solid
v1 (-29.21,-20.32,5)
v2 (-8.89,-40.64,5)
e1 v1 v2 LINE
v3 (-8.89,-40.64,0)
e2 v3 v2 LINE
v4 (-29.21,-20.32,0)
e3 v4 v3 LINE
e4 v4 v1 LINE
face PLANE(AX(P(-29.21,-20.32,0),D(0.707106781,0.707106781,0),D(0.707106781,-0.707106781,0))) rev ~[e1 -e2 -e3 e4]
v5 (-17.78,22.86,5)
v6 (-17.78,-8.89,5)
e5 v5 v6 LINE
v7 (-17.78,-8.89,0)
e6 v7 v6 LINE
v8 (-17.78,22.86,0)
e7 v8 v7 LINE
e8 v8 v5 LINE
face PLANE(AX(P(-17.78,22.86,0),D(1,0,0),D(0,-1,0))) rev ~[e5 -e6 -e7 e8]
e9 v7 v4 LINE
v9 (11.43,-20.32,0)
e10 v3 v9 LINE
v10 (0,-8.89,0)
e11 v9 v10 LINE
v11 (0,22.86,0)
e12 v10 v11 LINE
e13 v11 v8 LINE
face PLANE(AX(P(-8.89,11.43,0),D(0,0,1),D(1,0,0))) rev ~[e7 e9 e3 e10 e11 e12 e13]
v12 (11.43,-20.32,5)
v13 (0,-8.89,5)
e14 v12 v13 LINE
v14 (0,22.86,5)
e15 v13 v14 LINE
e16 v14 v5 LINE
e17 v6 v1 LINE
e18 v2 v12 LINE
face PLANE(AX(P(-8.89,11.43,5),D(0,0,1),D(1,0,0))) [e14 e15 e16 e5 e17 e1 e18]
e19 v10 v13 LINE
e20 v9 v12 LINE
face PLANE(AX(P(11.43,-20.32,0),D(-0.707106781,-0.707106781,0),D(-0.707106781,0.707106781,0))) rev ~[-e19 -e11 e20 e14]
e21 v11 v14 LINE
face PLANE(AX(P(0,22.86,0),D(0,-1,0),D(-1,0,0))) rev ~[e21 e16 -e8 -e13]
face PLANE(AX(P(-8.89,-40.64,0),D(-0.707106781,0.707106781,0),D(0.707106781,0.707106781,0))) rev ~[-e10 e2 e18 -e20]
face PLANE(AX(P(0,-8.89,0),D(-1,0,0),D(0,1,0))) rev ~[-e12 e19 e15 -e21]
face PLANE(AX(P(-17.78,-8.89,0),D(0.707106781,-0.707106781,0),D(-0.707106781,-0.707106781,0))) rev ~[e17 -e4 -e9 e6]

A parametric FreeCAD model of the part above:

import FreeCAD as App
import Part
import Sketcher
Q = App.Units.Quantity

doc = App.newDocument("Part")
body = doc.addObject("PartDesign::Body", "Body")

# Sketch on XY plane
sketch1 = body.newObject("Sketcher::SketchObject", "Sketch")
sketch1.AttachmentSupport = (doc.getObject("XY_Plane"), [""])
sketch1.MapMode = "FlatFace"
sketch1.addGeometry(Part.LineSegment(App.Vector(0, 23, 0), App.Vector(-18, 23, 0)), False)
sketch1.addGeometry(Part.LineSegment(App.Vector(-18, 23, 0), App.Vector(-18, -9, 0)), False)
sketch1.addGeometry(Part.LineSegment(App.Vector(-18, -9, 0), App.Vector(-29, -20, 0)), False)
sketch1.addGeometry(Part.LineSegment(App.Vector(-29, -20, 0), App.Vector(-9, -41, 0)), False)
sketch1.addGeometry(Part.LineSegment(App.Vector(-9, -41, 0), App.Vector(11, -20, 0)), False)
sketch1.addGeometry(Part.LineSegment(App.Vector(11, -20, 0), App.Vector(0, -9, 0)), False)
sketch1.addGeometry(Part.LineSegment(App.Vector(0, -9, 0), App.Vector(0, 23, 0)), False)
sketch1.addConstraint(Sketcher.Constraint("Coincident", 0, 2, 1, 1))
sketch1.addConstraint(Sketcher.Constraint("Coincident", 1, 2, 2, 1))
sketch1.addConstraint(Sketcher.Constraint("Coincident", 2, 2, 3, 1))
sketch1.addConstraint(Sketcher.Constraint("Coincident", 3, 2, 4, 1))
sketch1.addConstraint(Sketcher.Constraint("Coincident", 4, 2, 5, 1))
sketch1.addConstraint(Sketcher.Constraint("Coincident", 5, 2, 6, 1))
sketch1.addConstraint(Sketcher.Constraint("Coincident", 6, 2, 0, 1))
sketch1.addConstraint(Sketcher.Constraint("Horizontal", 0))
sketch1.addConstraint(Sketcher.Constraint("Vertical", 1))
sketch1.addConstraint(Sketcher.Constraint("Vertical", 6))
sketch1.addConstraint(Sketcher.Constraint("PointOnObject", 5, 2, -2))
sketch1.addConstraint(Sketcher.Constraint("Perpendicular", 2, 3))
sketch1.addConstraint(Sketcher.Constraint("Perpendicular", 3, 4))
sketch1.addConstraint(Sketcher.Constraint("Perpendicular", 4, 5))
sketch1.addConstraint(Sketcher.Constraint("Horizontal", 2, 2, 4, 2))
sketch1.addConstraint(Sketcher.Constraint("Horizontal", 1, 2, 5, 2))
sketch1.addConstraint(Sketcher.Constraint("Equal", 3, 4))
sketch1.addConstraint(Sketcher.Constraint("DistanceX", 0, 2, 0, 1, Q("0.7 in")))
sketch1.addConstraint(Sketcher.Constraint("DistanceY", 1, 2, 1, 1, Q("1.25 in")))
sketch1.addConstraint(Sketcher.Constraint("DistanceY", -1, 1, 0, 2, Q("0.9 in")))
sketch1.addConstraint(Sketcher.Constraint("DistanceY", 2, 2, -1, 1, Q("0.8 in")))
pad1 = body.newObject("PartDesign::Pad", "Pad")
pad1.Profile = sketch1
pad1.Length = 5

doc.recompute()
